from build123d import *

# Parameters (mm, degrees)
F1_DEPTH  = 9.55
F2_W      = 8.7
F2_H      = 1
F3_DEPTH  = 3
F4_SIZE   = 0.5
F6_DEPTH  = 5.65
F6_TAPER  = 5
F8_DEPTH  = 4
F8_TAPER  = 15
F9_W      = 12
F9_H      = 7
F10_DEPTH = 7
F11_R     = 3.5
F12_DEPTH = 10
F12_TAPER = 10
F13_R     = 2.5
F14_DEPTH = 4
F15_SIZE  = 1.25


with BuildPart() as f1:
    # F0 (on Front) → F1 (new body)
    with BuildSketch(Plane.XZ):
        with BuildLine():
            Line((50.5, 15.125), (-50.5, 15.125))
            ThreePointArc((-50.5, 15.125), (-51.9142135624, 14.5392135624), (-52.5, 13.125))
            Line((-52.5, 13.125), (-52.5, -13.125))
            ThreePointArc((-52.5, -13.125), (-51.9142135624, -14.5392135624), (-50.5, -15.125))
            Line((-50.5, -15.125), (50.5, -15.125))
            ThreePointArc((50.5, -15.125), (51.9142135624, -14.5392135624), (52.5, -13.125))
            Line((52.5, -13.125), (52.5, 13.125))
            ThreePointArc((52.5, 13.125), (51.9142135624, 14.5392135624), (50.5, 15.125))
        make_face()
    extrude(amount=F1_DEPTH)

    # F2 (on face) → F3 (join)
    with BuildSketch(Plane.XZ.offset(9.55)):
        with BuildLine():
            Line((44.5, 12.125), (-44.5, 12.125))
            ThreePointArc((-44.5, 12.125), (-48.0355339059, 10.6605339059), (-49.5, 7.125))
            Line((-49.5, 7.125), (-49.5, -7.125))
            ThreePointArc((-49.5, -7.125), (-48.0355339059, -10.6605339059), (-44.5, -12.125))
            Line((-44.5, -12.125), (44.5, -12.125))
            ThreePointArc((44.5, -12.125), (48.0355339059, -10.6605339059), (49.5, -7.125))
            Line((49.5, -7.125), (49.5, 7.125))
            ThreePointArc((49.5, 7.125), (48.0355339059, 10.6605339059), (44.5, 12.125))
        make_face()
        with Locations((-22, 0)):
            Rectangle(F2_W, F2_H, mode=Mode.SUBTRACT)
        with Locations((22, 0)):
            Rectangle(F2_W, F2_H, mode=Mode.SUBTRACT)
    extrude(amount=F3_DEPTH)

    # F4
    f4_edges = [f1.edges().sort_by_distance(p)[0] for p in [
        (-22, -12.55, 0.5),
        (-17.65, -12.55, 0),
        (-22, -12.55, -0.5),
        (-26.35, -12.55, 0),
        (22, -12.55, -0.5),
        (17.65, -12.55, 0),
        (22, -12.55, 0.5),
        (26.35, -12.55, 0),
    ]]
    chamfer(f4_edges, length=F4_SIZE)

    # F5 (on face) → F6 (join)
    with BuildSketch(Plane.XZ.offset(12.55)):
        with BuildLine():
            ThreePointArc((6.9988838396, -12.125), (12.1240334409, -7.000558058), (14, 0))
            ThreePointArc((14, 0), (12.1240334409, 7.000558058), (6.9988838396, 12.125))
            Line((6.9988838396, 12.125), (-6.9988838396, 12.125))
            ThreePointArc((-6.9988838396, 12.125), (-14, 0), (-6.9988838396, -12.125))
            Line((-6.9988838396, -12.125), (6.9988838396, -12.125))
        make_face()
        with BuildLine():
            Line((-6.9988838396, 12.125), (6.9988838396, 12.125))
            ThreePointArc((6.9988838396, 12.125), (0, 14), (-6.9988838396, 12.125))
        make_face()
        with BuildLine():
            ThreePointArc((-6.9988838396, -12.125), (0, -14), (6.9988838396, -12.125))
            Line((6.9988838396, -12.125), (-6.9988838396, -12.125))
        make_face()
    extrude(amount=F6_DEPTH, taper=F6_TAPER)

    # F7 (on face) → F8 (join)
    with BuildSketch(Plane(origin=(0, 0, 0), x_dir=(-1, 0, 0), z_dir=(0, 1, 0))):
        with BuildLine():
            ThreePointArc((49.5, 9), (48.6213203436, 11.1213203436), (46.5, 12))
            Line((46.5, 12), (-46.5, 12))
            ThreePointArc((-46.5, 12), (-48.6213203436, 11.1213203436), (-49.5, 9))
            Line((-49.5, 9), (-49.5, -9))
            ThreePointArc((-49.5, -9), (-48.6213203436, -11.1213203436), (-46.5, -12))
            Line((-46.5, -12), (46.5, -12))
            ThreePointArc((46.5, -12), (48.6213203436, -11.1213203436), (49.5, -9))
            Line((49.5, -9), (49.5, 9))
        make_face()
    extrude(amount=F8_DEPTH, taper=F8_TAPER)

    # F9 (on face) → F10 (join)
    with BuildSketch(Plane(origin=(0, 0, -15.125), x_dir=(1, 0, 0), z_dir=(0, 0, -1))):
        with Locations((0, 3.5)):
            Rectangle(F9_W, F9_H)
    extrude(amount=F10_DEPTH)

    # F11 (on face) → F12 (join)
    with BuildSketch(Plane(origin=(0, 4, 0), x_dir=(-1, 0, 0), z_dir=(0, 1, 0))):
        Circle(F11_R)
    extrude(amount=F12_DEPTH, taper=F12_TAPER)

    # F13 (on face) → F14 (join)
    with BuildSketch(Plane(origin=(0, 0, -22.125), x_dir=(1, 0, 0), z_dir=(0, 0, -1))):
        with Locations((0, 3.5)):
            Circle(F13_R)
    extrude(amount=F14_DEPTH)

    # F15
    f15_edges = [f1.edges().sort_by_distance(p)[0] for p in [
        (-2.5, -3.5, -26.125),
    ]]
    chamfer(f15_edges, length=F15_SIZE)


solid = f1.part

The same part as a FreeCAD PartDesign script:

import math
import FreeCAD as App
import Part
import Sketcher


def edges_at(feature, points):
    """Names of the edges that pass closest to the given points."""
    edges = feature.Shape.Edges
    near = lambda p: min(range(len(edges)), key=lambda i: edges[i].distToShape(Part.Vertex(*p))[0])
    return sorted({f"Edge{near(p) + 1}" for p in points})


def add_polygon(sketch, points):
    """Adds a closed chain of lines whose ends are joined by coincident constraints."""
    first, n = sketch.GeometryCount, len(points)
    for a, b in zip(points, points[1:] + points[:1]):
        sketch.addGeometry(Part.LineSegment(App.Vector(*a, 0), App.Vector(*b, 0)), False)
    for i in range(n):
        sketch.addConstraint(Sketcher.Constraint("Coincident", first + i, 2, first + (i + 1) % n, 1))

doc = App.newDocument("Part")
body = doc.addObject("PartDesign::Body", "Body")

# Sketch on XZ plane
sketch1 = body.newObject("Sketcher::SketchObject", "Sketch")
sketch1.AttachmentSupport = (doc.getObject("XZ_Plane"), [""])
sketch1.MapMode = "FlatFace"
sketch1.addGeometry(Part.LineSegment(App.Vector(50.5, 15.125, 0), App.Vector(-50.5, 15.125, 0)), False)
sketch1.addGeometry(Part.ArcOfCircle(Part.Circle(App.Vector(-50.5, 13.125, 0), App.Vector(0, 0, 1), 2), math.radians(90), math.radians(180)), False)
sketch1.addGeometry(Part.LineSegment(App.Vector(-52.5, 13.125, 0), App.Vector(-52.5, -13.125, 0)), False)
sketch1.addGeometry(Part.ArcOfCircle(Part.Circle(App.Vector(-50.5, -13.125, 0), App.Vector(0, 0, 1), 2), math.radians(180), math.radians(270)), False)
sketch1.addGeometry(Part.LineSegment(App.Vector(-50.5, -15.125, 0), App.Vector(50.5, -15.125, 0)), False)
sketch1.addGeometry(Part.ArcOfCircle(Part.Circle(App.Vector(50.5, -13.125, 0), App.Vector(0, 0, 1), 2), math.radians(-90), math.radians(0)), False)
sketch1.addGeometry(Part.LineSegment(App.Vector(52.5, -13.125, 0), App.Vector(52.5, 13.125, 0)), False)
sketch1.addGeometry(Part.ArcOfCircle(Part.Circle(App.Vector(50.5, 13.125, 0), App.Vector(0, 0, 1), 2), math.radians(0), math.radians(90)), False)
sketch1.addConstraint(Sketcher.Constraint("Tangent", 0, 2, 1, 1))
sketch1.addConstraint(Sketcher.Constraint("Tangent", 1, 2, 2, 1))
sketch1.addConstraint(Sketcher.Constraint("Tangent", 2, 2, 3, 1))
sketch1.addConstraint(Sketcher.Constraint("Tangent", 3, 2, 4, 1))
sketch1.addConstraint(Sketcher.Constraint("Tangent", 4, 2, 5, 1))
sketch1.addConstraint(Sketcher.Constraint("Tangent", 5, 2, 6, 1))
sketch1.addConstraint(Sketcher.Constraint("Tangent", 6, 2, 7, 1))
sketch1.addConstraint(Sketcher.Constraint("Tangent", 7, 2, 0, 1))
sketch1.addConstraint(Sketcher.Constraint("Horizontal", 0))
sketch1.addConstraint(Sketcher.Constraint("Vertical", 2))
sketch1.addConstraint(Sketcher.Constraint("Horizontal", 4))
sketch1.addConstraint(Sketcher.Constraint("Vertical", 6))
sketch1.addConstraint(Sketcher.Constraint("Equal", 1, 3))
sketch1.addConstraint(Sketcher.Constraint("Equal", 3, 5))
sketch1.addConstraint(Sketcher.Constraint("Equal", 5, 7))
sketch1.addConstraint(Sketcher.Constraint("Symmetric", 1, 3, 5, 3, -1, 1))
sketch1.addConstraint(Sketcher.Constraint("Radius", 1, 2.0))
sketch1.addConstraint(Sketcher.Constraint("DistanceX", 0, 2, 0, 1, 101.0))
sketch1.addConstraint(Sketcher.Constraint("DistanceY", 2, 2, 2, 1, 26.25))
pad1 = body.newObject("PartDesign::Pad", "Pad")
pad1.Profile = sketch1
pad1.Length = 9.55

# Sketch on XZ plane
sketch2 = body.newObject("Sketcher::SketchObject", "Sketch001")
sketch2.AttachmentSupport = (doc.getObject("XZ_Plane"), [""])
sketch2.MapMode = "FlatFace"
sketch2.AttachmentOffset = App.Placement(App.Vector(0, 0, 9.55), App.Rotation())
sketch2.addGeometry(Part.LineSegment(App.Vector(44.5, 12.125, 0), App.Vector(-44.5, 12.125, 0)), False)  # 0
sketch2.addGeometry(Part.ArcOfCircle(Part.Circle(App.Vector(-44.5, 7.125, 0), App.Vector(0, 0, 1), 5), math.radians(90), math.radians(180)), False)  # 1
sketch2.addGeometry(Part.LineSegment(App.Vector(-49.5, 7.125, 0), App.Vector(-49.5, -7.125, 0)), False)  # 2
sketch2.addGeometry(Part.ArcOfCircle(Part.Circle(App.Vector(-44.5, -7.125, 0), App.Vector(0, 0, 1), 5), math.radians(180), math.radians(270)), False)  # 3
sketch2.addGeometry(Part.LineSegment(App.Vector(-44.5, -12.125, 0), App.Vector(44.5, -12.125, 0)), False)  # 4
sketch2.addGeometry(Part.ArcOfCircle(Part.Circle(App.Vector(44.5, -7.125, 0), App.Vector(0, 0, 1), 5), math.radians(-90), math.radians(0)), False)  # 5
sketch2.addGeometry(Part.LineSegment(App.Vector(49.5, -7.125, 0), App.Vector(49.5, 7.125, 0)), False)  # 6
sketch2.addGeometry(Part.ArcOfCircle(Part.Circle(App.Vector(44.5, 7.125, 0), App.Vector(0, 0, 1), 5), math.radians(0), math.radians(90)), False)  # 7
add_polygon(sketch2, [(-17.65, -0.5), (-26.35, -0.5), (-26.35, 0.5), (-17.65, 0.5)])  # lines 8-11
add_polygon(sketch2, [(26.35, -0.5), (17.65, -0.5), (17.65, 0.5), (26.35, 0.5)])  # lines 12-15
sketch2.addConstraint(Sketcher.Constraint("Tangent", 0, 2, 1, 1))
sketch2.addConstraint(Sketcher.Constraint("Tangent", 1, 2, 2, 1))
sketch2.addConstraint(Sketcher.Constraint("Tangent", 2, 2, 3, 1))
sketch2.addConstraint(Sketcher.Constraint("Tangent", 3, 2, 4, 1))
sketch2.addConstraint(Sketcher.Constraint("Tangent", 4, 2, 5, 1))
sketch2.addConstraint(Sketcher.Constraint("Tangent", 5, 2, 6, 1))
sketch2.addConstraint(Sketcher.Constraint("Tangent", 6, 2, 7, 1))
sketch2.addConstraint(Sketcher.Constraint("Tangent", 7, 2, 0, 1))
sketch2.addConstraint(Sketcher.Constraint("Horizontal", 0))
sketch2.addConstraint(Sketcher.Constraint("Vertical", 2))
sketch2.addConstraint(Sketcher.Constraint("Horizontal", 4))
sketch2.addConstraint(Sketcher.Constraint("Vertical", 6))
sketch2.addConstraint(Sketcher.Constraint("Horizontal", 8))
sketch2.addConstraint(Sketcher.Constraint("Vertical", 9))
sketch2.addConstraint(Sketcher.Constraint("Horizontal", 10))
sketch2.addConstraint(Sketcher.Constraint("Vertical", 11))
sketch2.addConstraint(Sketcher.Constraint("Horizontal", 12))
sketch2.addConstraint(Sketcher.Constraint("Vertical", 13))
sketch2.addConstraint(Sketcher.Constraint("Horizontal", 14))
sketch2.addConstraint(Sketcher.Constraint("Vertical", 15))
sketch2.addConstraint(Sketcher.Constraint("Equal", 1, 3))
sketch2.addConstraint(Sketcher.Constraint("Equal", 3, 5))
sketch2.addConstraint(Sketcher.Constraint("Equal", 5, 7))
sketch2.addConstraint(Sketcher.Constraint("Symmetric", 1, 3, 5, 3, -1, 1))
sketch2.addConstraint(Sketcher.Constraint("Symmetric", 10, 2, 12, 2, -1, 1))
sketch2.addConstraint(Sketcher.Constraint("Symmetric", 8, 2, 14, 2, -1, 1))
sketch2.addConstraint(Sketcher.Constraint("Horizontal", 11, 2, 12, 2))
sketch2.addConstraint(Sketcher.Constraint("Radius", 1, 5.0))
sketch2.addConstraint(Sketcher.Constraint("DistanceX", 0, 2, 0, 1, 89.0))
sketch2.addConstraint(Sketcher.Constraint("DistanceY", 9, 1, 9, 2, 1.0))
sketch2.addConstraint(Sketcher.Constraint("DistanceX", 8, 2, 8, 1, 8.7))
sketch2.addConstraint(Sketcher.Constraint("DistanceY", 2, 2, 2, 1, 14.25))
sketch2.addConstraint(Sketcher.Constraint("DistanceX", 8, 2, -1, 1, 26.35))
pad2 = body.newObject("PartDesign::Pad", "Pad001")
pad2.Profile = sketch2
pad2.Length = 3
doc.recompute()

chamfer = body.newObject("PartDesign::Chamfer", "Chamfer")
chamfer.Base = (pad2, edges_at(pad2, [
    (-22, -12.55, 0.5),
    (-17.65, -12.55, 0),
    (-22, -12.55, -0.5),
    (-26.35, -12.55, 0),
    (22, -12.55, -0.5),
    (17.65, -12.55, 0),
    (22, -12.55, 0.5),
    (26.35, -12.55, 0),
]))
chamfer.Size = 0.5

# Sketch on XZ plane
sketch3 = body.newObject("Sketcher::SketchObject", "Sketch002")
sketch3.AttachmentSupport = (doc.getObject("XZ_Plane"), [""])
sketch3.MapMode = "FlatFace"
sketch3.AttachmentOffset = App.Placement(App.Vector(0, 0, 12.55), App.Rotation())
sketch3.addGeometry(Part.ArcOfCircle(Part.Circle(App.Vector(0, 0, 0), App.Vector(0, 0, 1), 14), math.radians(-60.005274), math.radians(0)), False)
sketch3.addGeometry(Part.ArcOfCircle(Part.Circle(App.Vector(0, 0, 0), App.Vector(0, 0, 1), 14), math.radians(0), math.radians(60.005274)), False)
sketch3.addGeometry(Part.ArcOfCircle(Part.Circle(App.Vector(0, 0, 0), App.Vector(0, 0, 1), 14), math.radians(60.005274), math.radians(119.994726)), False)
sketch3.addGeometry(Part.ArcOfCircle(Part.Circle(App.Vector(0, 0, 0), App.Vector(0, 0, 1), 14), math.radians(119.994726), math.radians(240.005274)), False)
sketch3.addGeometry(Part.ArcOfCircle(Part.Circle(App.Vector(0, 0, 0), App.Vector(0, 0, 1), 14), math.radians(-119.994726), math.radians(-60.005274)), False)
sketch3.addConstraint(Sketcher.Constraint("Tangent", 0, 2, 1, 1))
sketch3.addConstraint(Sketcher.Constraint("Tangent", 1, 2, 2, 1))
sketch3.addConstraint(Sketcher.Constraint("Tangent", 2, 2, 3, 1))
sketch3.addConstraint(Sketcher.Constraint("Tangent", 3, 2, 4, 1))
sketch3.addConstraint(Sketcher.Constraint("Tangent", 4, 2, 0, 1))
sketch3.addConstraint(Sketcher.Constraint("Coincident", 0, 3, -1, 1))
sketch3.addConstraint(Sketcher.Constraint("Coincident", 2, 3, -1, 1))
sketch3.addConstraint(Sketcher.Constraint("PointOnObject", 0, 2, -1))
sketch3.addConstraint(Sketcher.Constraint("Horizontal", 1, 2, 2, 2))
sketch3.addConstraint(Sketcher.Constraint("Horizontal", 3, 2, 4, 2))
sketch3.addConstraint(Sketcher.Constraint("Vertical", 2, 2, 3, 2))
sketch3.addConstraint(Sketcher.Constraint("Radius", 0, 14.0))
sketch3.addConstraint(Sketcher.Constraint("DistanceY", -1, 1, 1, 2, 12.125))
pad3 = body.newObject("PartDesign::Pad", "Pad002")
pad3.Profile = sketch3
pad3.Length = 5.65
pad3.TaperAngle = -5

# Sketch on XZ plane
sketch4 = body.newObject("Sketcher::SketchObject", "Sketch003")
sketch4.AttachmentSupport = (doc.getObject("XZ_Plane"), [""])
sketch4.MapMode = "FlatFace"
sketch4.addGeometry(Part.ArcOfCircle(Part.Circle(App.Vector(-46.5, 9, 0), App.Vector(0, 0, 1), 3), math.radians(90), math.radians(180)), False)
sketch4.addGeometry(Part.LineSegment(App.Vector(-46.5, 12, 0), App.Vector(46.5, 12, 0)), False)
sketch4.addGeometry(Part.ArcOfCircle(Part.Circle(App.Vector(46.5, 9, 0), App.Vector(0, 0, 1), 3), math.radians(0), math.radians(90)), False)
sketch4.addGeometry(Part.LineSegment(App.Vector(49.5, 9, 0), App.Vector(49.5, -9, 0)), False)
sketch4.addGeometry(Part.ArcOfCircle(Part.Circle(App.Vector(46.5, -9, 0), App.Vector(0, 0, 1), 3), math.radians(-90), math.radians(0)), False)
sketch4.addGeometry(Part.LineSegment(App.Vector(46.5, -12, 0), App.Vector(-46.5, -12, 0)), False)
sketch4.addGeometry(Part.ArcOfCircle(Part.Circle(App.Vector(-46.5, -9, 0), App.Vector(0, 0, 1), 3), math.radians(180), math.radians(270)), False)
sketch4.addGeometry(Part.LineSegment(App.Vector(-49.5, -9, 0), App.Vector(-49.5, 9, 0)), False)
sketch4.addConstraint(Sketcher.Constraint("Tangent", 0, 1, 1, 1))
sketch4.addConstraint(Sketcher.Constraint("Tangent", 1, 2, 2, 2))
sketch4.addConstraint(Sketcher.Constraint("Tangent", 2, 1, 3, 1))
sketch4.addConstraint(Sketcher.Constraint("Tangent", 3, 2, 4, 2))
sketch4.addConstraint(Sketcher.Constraint("Tangent", 4, 1, 5, 1))
sketch4.addConstraint(Sketcher.Constraint("Tangent", 5, 2, 6, 2))
sketch4.addConstraint(Sketcher.Constraint("Tangent", 6, 1, 7, 1))
sketch4.addConstraint(Sketcher.Constraint("Tangent", 7, 2, 0, 2))
sketch4.addConstraint(Sketcher.Constraint("Horizontal", 1))
sketch4.addConstraint(Sketcher.Constraint("Vertical", 3))
sketch4.addConstraint(Sketcher.Constraint("Horizontal", 5))
sketch4.addConstraint(Sketcher.Constraint("Vertical", 7))
sketch4.addConstraint(Sketcher.Constraint("Equal", 0, 2))
sketch4.addConstraint(Sketcher.Constraint("Equal", 2, 4))
sketch4.addConstraint(Sketcher.Constraint("Equal", 4, 6))
sketch4.addConstraint(Sketcher.Constraint("Symmetric", 0, 3, 4, 3, -1, 1))
sketch4.addConstraint(Sketcher.Constraint("Radius", 0, 3.0))
sketch4.addConstraint(Sketcher.Constraint("DistanceX", 1, 1, 1, 2, 93.0))
sketch4.addConstraint(Sketcher.Constraint("DistanceY", 3, 2, 3, 1, 18.0))
pad4 = body.newObject("PartDesign::Pad", "Pad003")
pad4.Profile = sketch4
pad4.Length = 4
pad4.Reversed = True
pad4.TaperAngle = -15

# Sketch on XY plane
sketch5 = body.newObject("Sketcher::SketchObject", "Sketch004")
sketch5.AttachmentSupport = (doc.getObject("XY_Plane"), [""])
sketch5.MapMode = "FlatFace"
sketch5.AttachmentOffset = App.Placement(App.Vector(0, 0, -15.125), App.Rotation())
add_polygon(sketch5, [(-6, -7), (-6, 0), (6, 0), (6, -7)])  # lines 0-3
sketch5.addConstraint(Sketcher.Constraint("Vertical", 0))
sketch5.addConstraint(Sketcher.Constraint("Horizontal", 1))
sketch5.addConstraint(Sketcher.Constraint("Vertical", 2))
sketch5.addConstraint(Sketcher.Constraint("Horizontal", 3))
sketch5.addConstraint(Sketcher.Constraint("Symmetric", 0, 2, 1, 2, -1, 1))
sketch5.addConstraint(Sketcher.Constraint("DistanceX", 1, 1, 1, 2, 12.0))
sketch5.addConstraint(Sketcher.Constraint("DistanceY", 0, 1, 0, 2, 7.0))
pad5 = body.newObject("PartDesign::Pad", "Pad004")
pad5.Profile = sketch5
pad5.Length = 7
pad5.Reversed = True

# Sketch on XZ plane
sketch6 = body.newObject("Sketcher::SketchObject", "Sketch005")
sketch6.AttachmentSupport = (doc.getObject("XZ_Plane"), [""])
sketch6.MapMode = "FlatFace"
sketch6.AttachmentOffset = App.Placement(App.Vector(0, 0, -4), App.Rotation())
sketch6.addGeometry(Part.Circle(App.Vector(0, 0, 0), App.Vector(0, 0, 1), 3.5), False)
sketch6.addConstraint(Sketcher.Constraint("Coincident", 0, 3, -1, 1))
sketch6.addConstraint(Sketcher.Constraint("Diameter", 0, 7.0))
pad6 = body.newObject("PartDesign::Pad", "Pad005")
pad6.Profile = sketch6
pad6.Length = 10
pad6.Reversed = True
pad6.TaperAngle = -10

# Sketch on XY plane
sketch7 = body.newObject("Sketcher::SketchObject", "Sketch006")
sketch7.AttachmentSupport = (doc.getObject("XY_Plane"), [""])
sketch7.MapMode = "FlatFace"
sketch7.AttachmentOffset = App.Placement(App.Vector(0, 0, -22.125), App.Rotation())
sketch7.addGeometry(Part.Circle(App.Vector(0, -3.5, 0), App.Vector(0, 0, 1), 2.5), False)
sketch7.addConstraint(Sketcher.Constraint("PointOnObject", 0, 3, -2))
sketch7.addConstraint(Sketcher.Constraint("Diameter", 0, 5.0))
sketch7.addConstraint(Sketcher.Constraint("DistanceY", 0, 3, -1, 1, 3.5))
pad7 = body.newObject("PartDesign::Pad", "Pad006")
pad7.Profile = sketch7
pad7.Length = 4
pad7.Reversed = True
doc.recompute()

chamfer2 = body.newObject("PartDesign::Chamfer", "Chamfer001")
chamfer2.Base = (pad7, edges_at(pad7, [(-2.5, -3.5, -26.125)]))
chamfer2.Size = 1.25

doc.recompute()
